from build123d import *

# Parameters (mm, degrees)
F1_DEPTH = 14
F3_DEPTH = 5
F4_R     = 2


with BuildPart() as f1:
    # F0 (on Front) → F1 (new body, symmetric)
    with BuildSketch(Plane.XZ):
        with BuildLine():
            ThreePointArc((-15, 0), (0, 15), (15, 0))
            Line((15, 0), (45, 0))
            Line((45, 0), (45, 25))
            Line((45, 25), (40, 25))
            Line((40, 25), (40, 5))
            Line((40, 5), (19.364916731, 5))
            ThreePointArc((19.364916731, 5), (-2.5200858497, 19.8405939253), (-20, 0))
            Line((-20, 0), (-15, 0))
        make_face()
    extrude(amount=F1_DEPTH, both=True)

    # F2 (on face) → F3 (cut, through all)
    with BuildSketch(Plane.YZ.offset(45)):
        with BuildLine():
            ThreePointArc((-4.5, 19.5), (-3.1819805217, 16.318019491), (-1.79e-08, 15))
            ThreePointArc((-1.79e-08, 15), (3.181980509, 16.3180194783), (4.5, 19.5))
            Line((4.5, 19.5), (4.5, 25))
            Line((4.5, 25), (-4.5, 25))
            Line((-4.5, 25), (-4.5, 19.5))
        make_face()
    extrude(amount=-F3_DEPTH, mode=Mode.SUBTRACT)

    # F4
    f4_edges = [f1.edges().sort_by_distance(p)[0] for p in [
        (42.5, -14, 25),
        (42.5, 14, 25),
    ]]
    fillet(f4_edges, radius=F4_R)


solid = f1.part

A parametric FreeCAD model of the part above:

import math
import FreeCAD as App
import Part
import Sketcher

V = App.Vector


def edges_at(feature, points):
    """Names of the edges that pass closest to the given points."""
    edges = feature.Shape.Edges
    near = lambda p: min(range(len(edges)), key=lambda i: edges[i].distToShape(Part.Vertex(*p))[0])
    return sorted({f"Edge{near(p) + 1}" for p in points})

doc = App.newDocument("Part")
body = doc.addObject("PartDesign::Body", "Body")

# Sketch on XZ plane
sketch1 = body.newObject("Sketcher::SketchObject", "Sketch")
sketch1.AttachmentSupport = (doc.getObject("XZ_Plane"), [""])
sketch1.MapMode = "FlatFace"
sketch1.addGeometry([
    Part.ArcOfCircle(Part.Circle(V(0, 0, 0), V(0, 0, 1), 15), math.radians(0), math.radians(180)),  # 0
    Part.LineSegment(V(15, 0, 0), V(45, 0, 0)),  # 1
    Part.LineSegment(V(45, 0, 0), V(45, 25, 0)),  # 2
    Part.LineSegment(V(45, 25, 0), V(40, 25, 0)),  # 3
    Part.LineSegment(V(40, 25, 0), V(40, 5, 0)),  # 4
    Part.LineSegment(V(40, 5, 0), V(19, 5, 0)),  # 5
    Part.ArcOfCircle(Part.Circle(V(0, 0, 0), V(0, 0, 1), 20), math.radians(14), math.radians(180)),  # 6
    Part.LineSegment(V(-20, 0, 0), V(-15, 0, 0)),  # 7
], False)
sketch1.addConstraint([
    Sketcher.Constraint("Coincident", 0, 1, 1, 1),
    Sketcher.Constraint("Coincident", 1, 2, 2, 1),
    Sketcher.Constraint("Coincident", 2, 2, 3, 1),
    Sketcher.Constraint("Coincident", 3, 2, 4, 1),
    Sketcher.Constraint("Coincident", 4, 2, 5, 1),
    Sketcher.Constraint("Coincident", 5, 2, 6, 1),
    Sketcher.Constraint("Coincident", 6, 2, 7, 1),
    Sketcher.Constraint("Coincident", 7, 2, 0, 2),
    Sketcher.Constraint("Horizontal", 1),
    Sketcher.Constraint("Vertical", 2),
    Sketcher.Constraint("Horizontal", 3),
    Sketcher.Constraint("Vertical", 4),
    Sketcher.Constraint("Horizontal", 5),
    Sketcher.Constraint("Horizontal", 7),
    Sketcher.Constraint("Coincident", 0, 3, -1, 1),
    Sketcher.Constraint("Coincident", 6, 3, -1, 1),
    Sketcher.Constraint("PointOnObject", 0, 1, -1),
    Sketcher.Constraint("PointOnObject", 6, 2, -1),
    Sketcher.Constraint("Equal", 3, 7),
    Sketcher.Constraint("Radius", 0, 15.0),
    Sketcher.Constraint("Radius", 6, 20.0),
    Sketcher.Constraint("DistanceX", 1, 1, 1, 2, 30.0),
    Sketcher.Constraint("DistanceY", 2, 1, 2, 2, 25.0),
    Sketcher.Constraint("DistanceY", 4, 2, 4, 1, 20.0),
])
pad1 = body.newObject("PartDesign::Pad", "Pad")
pad1.Profile = sketch1
pad1.Length = 28
pad1.Midplane = True

# Sketch on YZ plane
sketch2 = body.newObject("Sketcher::SketchObject", "Sketch001")
sketch2.AttachmentSupport = (doc.getObject("YZ_Plane"), [""])
sketch2.MapMode = "FlatFace"
sketch2.AttachmentOffset = App.Placement(V(0, 0, 45), App.Rotation())
sketch2.addGeometry([
    Part.ArcOfCircle(Part.Circle(V(0, 19.5, 0), V(0, 0, 1), 4.5), math.radians(180), math.radians(270)),  # 0
    Part.ArcOfCircle(Part.Circle(V(0, 19.5, 0), V(0, 0, 1), 4.5), math.radians(-90), math.radians(0)),  # 1
    Part.LineSegment(V(4.5, 19.5, 0), V(4.5, 25, 0)),  # 2
    Part.LineSegment(V(4.5, 25, 0), V(-4.5, 25, 0)),  # 3
    Part.LineSegment(V(-4.5, 25, 0), V(-4.5, 19.5, 0)),  # 4
], False)
sketch2.addConstraint([
    Sketcher.Constraint("Tangent", 0, 2, 1, 1),
    Sketcher.Constraint("Tangent", 1, 2, 2, 1),
    Sketcher.Constraint("Coincident", 2, 2, 3, 1),
    Sketcher.Constraint("Coincident", 3, 2, 4, 1),
    Sketcher.Constraint("Tangent", 4, 2, 0, 1),
    Sketcher.Constraint("Vertical", 2),
    Sketcher.Constraint("Horizontal", 3),
    Sketcher.Constraint("Vertical", 4),
    Sketcher.Constraint("Equal", 0, 1),
    Sketcher.Constraint("PointOnObject", 0, 3, -2),
    Sketcher.Constraint("PointOnObject", 0, 2, -2),
    Sketcher.Constraint("Radius", 0, 4.5),
    Sketcher.Constraint("DistanceY", 2, 1, 2, 2, 5.5),
    Sketcher.Constraint("DistanceY", -1, 1, 0, 2, 15.0),
])
pocket1 = body.newObject("PartDesign::Pocket", "Pocket")
pocket1.Profile = sketch2
pocket1.Length = 5
doc.recompute()

fillet = body.newObject("PartDesign::Fillet", "Fillet")
fillet.Base = (pocket1, edges_at(pocket1, [(42.5, -14, 25), (42.5, 14, 25)]))
fillet.Radius = 2

doc.recompute()
